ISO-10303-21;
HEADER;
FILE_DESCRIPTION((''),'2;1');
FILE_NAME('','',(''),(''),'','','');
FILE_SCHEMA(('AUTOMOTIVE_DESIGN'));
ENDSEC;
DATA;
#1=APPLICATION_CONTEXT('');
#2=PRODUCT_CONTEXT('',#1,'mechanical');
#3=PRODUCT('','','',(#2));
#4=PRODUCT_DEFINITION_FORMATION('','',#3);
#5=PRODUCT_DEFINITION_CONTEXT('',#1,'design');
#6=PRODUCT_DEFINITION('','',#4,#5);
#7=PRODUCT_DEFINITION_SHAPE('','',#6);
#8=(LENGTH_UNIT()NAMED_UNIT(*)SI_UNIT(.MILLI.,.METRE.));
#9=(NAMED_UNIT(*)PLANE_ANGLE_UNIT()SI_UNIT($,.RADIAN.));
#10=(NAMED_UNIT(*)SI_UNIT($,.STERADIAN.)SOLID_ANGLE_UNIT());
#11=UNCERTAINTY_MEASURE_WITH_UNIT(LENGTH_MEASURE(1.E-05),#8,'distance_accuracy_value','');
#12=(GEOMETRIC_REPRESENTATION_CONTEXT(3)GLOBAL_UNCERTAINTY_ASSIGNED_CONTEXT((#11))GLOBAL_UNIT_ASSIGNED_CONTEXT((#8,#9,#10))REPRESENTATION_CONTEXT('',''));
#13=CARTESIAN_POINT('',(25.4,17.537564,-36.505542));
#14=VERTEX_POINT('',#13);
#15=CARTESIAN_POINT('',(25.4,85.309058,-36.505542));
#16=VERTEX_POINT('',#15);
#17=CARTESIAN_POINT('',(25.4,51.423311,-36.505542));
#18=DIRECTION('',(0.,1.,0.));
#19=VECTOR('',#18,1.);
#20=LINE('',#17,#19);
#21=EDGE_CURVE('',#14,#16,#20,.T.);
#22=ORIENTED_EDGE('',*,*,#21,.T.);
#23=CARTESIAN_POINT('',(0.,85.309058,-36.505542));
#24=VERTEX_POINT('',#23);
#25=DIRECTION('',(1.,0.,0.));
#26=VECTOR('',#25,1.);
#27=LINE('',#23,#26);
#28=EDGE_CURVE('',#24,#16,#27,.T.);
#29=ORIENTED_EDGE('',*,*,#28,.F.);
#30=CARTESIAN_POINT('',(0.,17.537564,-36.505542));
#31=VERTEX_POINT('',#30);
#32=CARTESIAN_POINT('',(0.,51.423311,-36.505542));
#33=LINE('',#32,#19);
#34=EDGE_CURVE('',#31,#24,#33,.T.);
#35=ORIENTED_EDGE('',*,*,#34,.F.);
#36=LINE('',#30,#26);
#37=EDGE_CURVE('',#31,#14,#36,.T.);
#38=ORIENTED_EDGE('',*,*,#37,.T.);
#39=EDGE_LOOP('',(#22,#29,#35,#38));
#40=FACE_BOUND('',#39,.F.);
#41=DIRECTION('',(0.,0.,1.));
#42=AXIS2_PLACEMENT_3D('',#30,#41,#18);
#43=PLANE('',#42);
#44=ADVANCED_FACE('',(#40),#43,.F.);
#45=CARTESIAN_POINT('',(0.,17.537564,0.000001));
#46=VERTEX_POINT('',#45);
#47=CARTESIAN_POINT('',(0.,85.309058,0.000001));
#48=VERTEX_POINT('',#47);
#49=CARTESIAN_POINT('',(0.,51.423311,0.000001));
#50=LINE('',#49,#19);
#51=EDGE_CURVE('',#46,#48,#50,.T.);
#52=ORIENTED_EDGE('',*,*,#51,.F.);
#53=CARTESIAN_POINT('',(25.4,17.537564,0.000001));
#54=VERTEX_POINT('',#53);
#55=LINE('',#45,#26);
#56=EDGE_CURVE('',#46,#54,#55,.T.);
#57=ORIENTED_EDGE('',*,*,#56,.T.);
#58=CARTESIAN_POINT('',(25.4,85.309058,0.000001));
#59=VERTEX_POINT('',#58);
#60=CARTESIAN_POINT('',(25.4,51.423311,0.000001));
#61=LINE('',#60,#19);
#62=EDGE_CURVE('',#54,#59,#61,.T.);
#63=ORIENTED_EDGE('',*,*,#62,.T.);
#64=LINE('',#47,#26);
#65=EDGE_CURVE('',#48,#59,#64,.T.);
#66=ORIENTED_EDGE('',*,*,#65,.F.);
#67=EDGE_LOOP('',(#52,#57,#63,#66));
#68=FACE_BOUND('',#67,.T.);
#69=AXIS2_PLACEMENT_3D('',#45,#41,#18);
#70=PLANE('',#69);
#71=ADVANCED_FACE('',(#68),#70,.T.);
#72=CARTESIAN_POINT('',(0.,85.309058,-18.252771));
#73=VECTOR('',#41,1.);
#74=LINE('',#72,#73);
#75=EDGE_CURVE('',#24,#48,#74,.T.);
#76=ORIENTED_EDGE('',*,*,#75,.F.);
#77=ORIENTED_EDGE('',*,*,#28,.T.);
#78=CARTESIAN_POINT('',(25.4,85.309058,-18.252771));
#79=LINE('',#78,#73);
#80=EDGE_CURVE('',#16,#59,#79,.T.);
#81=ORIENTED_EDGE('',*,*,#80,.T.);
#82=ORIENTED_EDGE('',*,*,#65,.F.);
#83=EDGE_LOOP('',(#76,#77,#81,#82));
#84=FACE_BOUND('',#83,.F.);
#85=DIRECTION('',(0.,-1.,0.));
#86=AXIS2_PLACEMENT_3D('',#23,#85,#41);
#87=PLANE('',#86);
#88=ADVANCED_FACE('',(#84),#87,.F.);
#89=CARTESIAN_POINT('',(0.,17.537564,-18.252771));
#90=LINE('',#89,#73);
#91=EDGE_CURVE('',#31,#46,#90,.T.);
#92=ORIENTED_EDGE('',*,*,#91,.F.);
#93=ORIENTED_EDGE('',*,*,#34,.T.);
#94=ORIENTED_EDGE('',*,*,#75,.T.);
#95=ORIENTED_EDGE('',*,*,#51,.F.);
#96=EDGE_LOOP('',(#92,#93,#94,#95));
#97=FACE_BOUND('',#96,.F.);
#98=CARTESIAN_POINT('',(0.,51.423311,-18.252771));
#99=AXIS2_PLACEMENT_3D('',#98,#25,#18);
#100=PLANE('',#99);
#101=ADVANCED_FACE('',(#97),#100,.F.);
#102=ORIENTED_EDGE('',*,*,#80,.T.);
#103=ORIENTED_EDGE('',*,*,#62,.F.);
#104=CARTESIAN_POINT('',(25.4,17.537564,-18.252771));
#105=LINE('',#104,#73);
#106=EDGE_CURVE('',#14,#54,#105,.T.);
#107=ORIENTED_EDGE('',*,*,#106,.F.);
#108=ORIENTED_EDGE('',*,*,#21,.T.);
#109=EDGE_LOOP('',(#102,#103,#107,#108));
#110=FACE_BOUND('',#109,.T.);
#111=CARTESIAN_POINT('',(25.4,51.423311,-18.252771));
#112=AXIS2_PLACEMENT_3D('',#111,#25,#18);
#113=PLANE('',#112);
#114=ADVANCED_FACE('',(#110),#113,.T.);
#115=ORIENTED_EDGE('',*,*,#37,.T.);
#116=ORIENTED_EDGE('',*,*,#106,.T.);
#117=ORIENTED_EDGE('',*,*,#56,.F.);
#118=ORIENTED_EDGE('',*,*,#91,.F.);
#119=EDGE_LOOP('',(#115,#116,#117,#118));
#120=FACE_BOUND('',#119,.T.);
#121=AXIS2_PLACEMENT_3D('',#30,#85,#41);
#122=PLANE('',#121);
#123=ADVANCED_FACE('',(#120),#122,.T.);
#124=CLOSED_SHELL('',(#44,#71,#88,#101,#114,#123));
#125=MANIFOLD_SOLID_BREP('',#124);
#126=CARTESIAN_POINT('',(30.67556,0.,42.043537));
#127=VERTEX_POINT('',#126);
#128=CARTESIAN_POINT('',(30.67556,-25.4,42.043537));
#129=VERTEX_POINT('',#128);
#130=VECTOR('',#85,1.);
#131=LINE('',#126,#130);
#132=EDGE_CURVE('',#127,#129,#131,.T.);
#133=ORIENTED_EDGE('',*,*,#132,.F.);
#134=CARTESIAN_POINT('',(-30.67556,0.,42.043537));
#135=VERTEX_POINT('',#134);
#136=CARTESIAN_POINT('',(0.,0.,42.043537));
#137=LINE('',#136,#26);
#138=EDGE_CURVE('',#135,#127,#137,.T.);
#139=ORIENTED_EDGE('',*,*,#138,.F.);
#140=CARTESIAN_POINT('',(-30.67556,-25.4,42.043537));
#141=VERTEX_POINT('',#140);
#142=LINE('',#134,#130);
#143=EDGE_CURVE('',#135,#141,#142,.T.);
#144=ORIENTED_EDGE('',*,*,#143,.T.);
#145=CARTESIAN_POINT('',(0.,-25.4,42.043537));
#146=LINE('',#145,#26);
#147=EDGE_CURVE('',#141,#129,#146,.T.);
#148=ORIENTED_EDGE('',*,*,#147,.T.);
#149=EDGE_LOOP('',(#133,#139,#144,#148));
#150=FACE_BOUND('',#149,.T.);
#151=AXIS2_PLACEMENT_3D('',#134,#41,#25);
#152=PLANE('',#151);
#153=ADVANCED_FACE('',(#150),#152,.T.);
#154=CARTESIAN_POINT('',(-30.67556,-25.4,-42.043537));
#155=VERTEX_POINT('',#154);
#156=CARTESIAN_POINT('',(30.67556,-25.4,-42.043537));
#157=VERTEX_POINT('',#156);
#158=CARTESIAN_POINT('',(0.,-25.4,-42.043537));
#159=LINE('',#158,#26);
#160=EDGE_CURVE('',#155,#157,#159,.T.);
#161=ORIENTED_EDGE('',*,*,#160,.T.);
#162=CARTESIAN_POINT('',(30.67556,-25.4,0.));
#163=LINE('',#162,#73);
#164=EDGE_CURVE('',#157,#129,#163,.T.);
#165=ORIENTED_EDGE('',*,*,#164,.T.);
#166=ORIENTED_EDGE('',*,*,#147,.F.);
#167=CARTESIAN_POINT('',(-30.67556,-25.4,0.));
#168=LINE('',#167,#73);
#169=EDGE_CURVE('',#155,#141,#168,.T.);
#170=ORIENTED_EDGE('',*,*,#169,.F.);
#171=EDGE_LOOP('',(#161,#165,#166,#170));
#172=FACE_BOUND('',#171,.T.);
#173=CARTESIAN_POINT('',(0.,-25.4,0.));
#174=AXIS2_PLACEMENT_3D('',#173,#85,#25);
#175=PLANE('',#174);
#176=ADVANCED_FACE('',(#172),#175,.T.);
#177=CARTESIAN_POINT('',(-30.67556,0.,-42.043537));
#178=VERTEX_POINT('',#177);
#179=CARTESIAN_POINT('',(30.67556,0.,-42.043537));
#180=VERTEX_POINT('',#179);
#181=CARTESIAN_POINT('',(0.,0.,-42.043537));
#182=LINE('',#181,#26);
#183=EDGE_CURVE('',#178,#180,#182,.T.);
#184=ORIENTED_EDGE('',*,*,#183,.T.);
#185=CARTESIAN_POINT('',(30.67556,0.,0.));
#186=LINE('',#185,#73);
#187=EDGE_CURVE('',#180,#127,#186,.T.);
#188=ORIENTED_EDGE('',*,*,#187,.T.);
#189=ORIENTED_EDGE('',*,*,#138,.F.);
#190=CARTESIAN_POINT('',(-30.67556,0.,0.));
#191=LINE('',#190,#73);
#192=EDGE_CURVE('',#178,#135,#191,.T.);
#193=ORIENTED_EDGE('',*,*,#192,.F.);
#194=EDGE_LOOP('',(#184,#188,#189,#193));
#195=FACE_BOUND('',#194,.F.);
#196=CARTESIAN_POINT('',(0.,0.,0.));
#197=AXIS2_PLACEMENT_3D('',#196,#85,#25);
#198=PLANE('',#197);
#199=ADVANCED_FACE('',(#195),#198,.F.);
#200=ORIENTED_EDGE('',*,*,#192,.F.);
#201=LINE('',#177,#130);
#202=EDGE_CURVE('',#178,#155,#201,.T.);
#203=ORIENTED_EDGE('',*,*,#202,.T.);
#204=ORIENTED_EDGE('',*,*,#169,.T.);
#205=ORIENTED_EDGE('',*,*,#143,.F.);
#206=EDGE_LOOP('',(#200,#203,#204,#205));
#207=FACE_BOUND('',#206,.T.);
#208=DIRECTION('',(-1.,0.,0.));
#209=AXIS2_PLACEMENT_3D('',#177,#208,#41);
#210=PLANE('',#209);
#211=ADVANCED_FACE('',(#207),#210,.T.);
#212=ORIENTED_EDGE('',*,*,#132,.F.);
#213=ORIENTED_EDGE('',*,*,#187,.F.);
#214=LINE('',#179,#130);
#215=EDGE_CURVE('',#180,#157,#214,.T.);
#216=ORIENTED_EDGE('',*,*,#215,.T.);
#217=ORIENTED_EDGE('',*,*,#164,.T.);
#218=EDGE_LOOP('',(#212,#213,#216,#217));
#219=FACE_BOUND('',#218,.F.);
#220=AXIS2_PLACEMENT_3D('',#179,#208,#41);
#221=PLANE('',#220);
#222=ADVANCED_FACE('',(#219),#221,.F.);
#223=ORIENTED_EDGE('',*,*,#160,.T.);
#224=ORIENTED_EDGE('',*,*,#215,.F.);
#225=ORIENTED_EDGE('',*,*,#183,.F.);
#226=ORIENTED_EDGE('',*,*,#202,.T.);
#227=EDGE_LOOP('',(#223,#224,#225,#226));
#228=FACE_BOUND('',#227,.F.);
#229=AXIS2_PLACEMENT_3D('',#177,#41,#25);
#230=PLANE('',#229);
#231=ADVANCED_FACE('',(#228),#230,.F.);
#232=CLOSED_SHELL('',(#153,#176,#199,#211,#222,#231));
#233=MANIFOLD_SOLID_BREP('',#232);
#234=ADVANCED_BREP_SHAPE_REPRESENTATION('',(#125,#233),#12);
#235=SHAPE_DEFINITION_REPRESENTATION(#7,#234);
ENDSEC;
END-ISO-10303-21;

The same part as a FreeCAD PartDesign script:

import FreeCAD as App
import Part
import Sketcher
from FreeCAD import Vector
Q = App.Units.Quantity

doc = App.newDocument("Part")
body = doc.addObject("PartDesign::Body", "Body")

sketch1 = body.newObject("Sketcher::SketchObject", "Sketch")
sketch1.AttachmentSupport = (doc.getObject("XZ_Plane"), [""])
sketch1.MapMode = "FlatFace"
sketch1.addGeometry([
    Part.LineSegment(Vector(-31, 42, 0), Vector(-31, -42, 0)),
    Part.LineSegment(Vector(-31, -42, 0), Vector(31, -42, 0)),
    Part.LineSegment(Vector(31, -42, 0), Vector(31, 42, 0)),
    Part.LineSegment(Vector(31, 42, 0), Vector(-31, 42, 0)),
], False)
sketch1.addConstraint([
    Sketcher.Constraint("Coincident", 0, 2, 1, 1),
    Sketcher.Constraint("Coincident", 1, 2, 2, 1),
    Sketcher.Constraint("Coincident", 2, 2, 3, 1),
    Sketcher.Constraint("Coincident", 3, 2, 0, 1),
    Sketcher.Constraint("Vertical", 0),
    Sketcher.Constraint("Horizontal", 1),
    Sketcher.Constraint("Vertical", 2),
    Sketcher.Constraint("Horizontal", 3),
    Sketcher.Constraint("Symmetric", 0, 2, 2, 2, -1, 1),
    Sketcher.Constraint("DistanceX", 1, 1, 1, 2, Q("61.35112 mm")),
    Sketcher.Constraint("DistanceY", 0, 2, 0, 1, Q("84.087074 mm")),
])
pad1 = body.newObject("PartDesign::Pad", "Pad")
pad1.Profile = sketch1
pad1.Length = Q("1 in")
body2 = doc.addObject("PartDesign::Body", "Body001")

sketch2 = body2.newObject("Sketcher::SketchObject", "Sketch001")
sketch2.AttachmentSupport = (doc.getObject("YZ_Plane001"), [""])
sketch2.MapMode = "FlatFace"
sketch2.addGeometry([
    Part.LineSegment(Vector(18, 0, 0), Vector(18, -37, 0)),
    Part.LineSegment(Vector(18, -37, 0), Vector(85, -37, 0)),
    Part.LineSegment(Vector(85, -37, 0), Vector(85, 0, 0)),
    Part.LineSegment(Vector(85, 0, 0), Vector(18, 0, 0)),
], False)
sketch2.addConstraint([
    Sketcher.Constraint("Coincident", 0, 2, 1, 1),
    Sketcher.Constraint("Coincident", 1, 2, 2, 1),
    Sketcher.Constraint("Coincident", 2, 2, 3, 1),
    Sketcher.Constraint("Coincident", 3, 2, 0, 1),
    Sketcher.Constraint("Vertical", 0),
    Sketcher.Constraint("Horizontal", 1),
    Sketcher.Constraint("Vertical", 2),
    Sketcher.Constraint("Horizontal", 3),
    Sketcher.Constraint("PointOnObject", 2, 2, -1),
    Sketcher.Constraint("DistanceX", 1, 1, 1, 2, Q("67.771494 mm")),
    Sketcher.Constraint("DistanceY", 0, 2, 0, 1, Q("36.505543 mm")),
    Sketcher.Constraint("DistanceX", -1, 1, 0, 2, Q("17.537564 mm")),
])
pad2 = body2.newObject("PartDesign::Pad", "Pad001")
pad2.Profile = sketch2
pad2.Length = Q("1 in")

doc.recompute()
